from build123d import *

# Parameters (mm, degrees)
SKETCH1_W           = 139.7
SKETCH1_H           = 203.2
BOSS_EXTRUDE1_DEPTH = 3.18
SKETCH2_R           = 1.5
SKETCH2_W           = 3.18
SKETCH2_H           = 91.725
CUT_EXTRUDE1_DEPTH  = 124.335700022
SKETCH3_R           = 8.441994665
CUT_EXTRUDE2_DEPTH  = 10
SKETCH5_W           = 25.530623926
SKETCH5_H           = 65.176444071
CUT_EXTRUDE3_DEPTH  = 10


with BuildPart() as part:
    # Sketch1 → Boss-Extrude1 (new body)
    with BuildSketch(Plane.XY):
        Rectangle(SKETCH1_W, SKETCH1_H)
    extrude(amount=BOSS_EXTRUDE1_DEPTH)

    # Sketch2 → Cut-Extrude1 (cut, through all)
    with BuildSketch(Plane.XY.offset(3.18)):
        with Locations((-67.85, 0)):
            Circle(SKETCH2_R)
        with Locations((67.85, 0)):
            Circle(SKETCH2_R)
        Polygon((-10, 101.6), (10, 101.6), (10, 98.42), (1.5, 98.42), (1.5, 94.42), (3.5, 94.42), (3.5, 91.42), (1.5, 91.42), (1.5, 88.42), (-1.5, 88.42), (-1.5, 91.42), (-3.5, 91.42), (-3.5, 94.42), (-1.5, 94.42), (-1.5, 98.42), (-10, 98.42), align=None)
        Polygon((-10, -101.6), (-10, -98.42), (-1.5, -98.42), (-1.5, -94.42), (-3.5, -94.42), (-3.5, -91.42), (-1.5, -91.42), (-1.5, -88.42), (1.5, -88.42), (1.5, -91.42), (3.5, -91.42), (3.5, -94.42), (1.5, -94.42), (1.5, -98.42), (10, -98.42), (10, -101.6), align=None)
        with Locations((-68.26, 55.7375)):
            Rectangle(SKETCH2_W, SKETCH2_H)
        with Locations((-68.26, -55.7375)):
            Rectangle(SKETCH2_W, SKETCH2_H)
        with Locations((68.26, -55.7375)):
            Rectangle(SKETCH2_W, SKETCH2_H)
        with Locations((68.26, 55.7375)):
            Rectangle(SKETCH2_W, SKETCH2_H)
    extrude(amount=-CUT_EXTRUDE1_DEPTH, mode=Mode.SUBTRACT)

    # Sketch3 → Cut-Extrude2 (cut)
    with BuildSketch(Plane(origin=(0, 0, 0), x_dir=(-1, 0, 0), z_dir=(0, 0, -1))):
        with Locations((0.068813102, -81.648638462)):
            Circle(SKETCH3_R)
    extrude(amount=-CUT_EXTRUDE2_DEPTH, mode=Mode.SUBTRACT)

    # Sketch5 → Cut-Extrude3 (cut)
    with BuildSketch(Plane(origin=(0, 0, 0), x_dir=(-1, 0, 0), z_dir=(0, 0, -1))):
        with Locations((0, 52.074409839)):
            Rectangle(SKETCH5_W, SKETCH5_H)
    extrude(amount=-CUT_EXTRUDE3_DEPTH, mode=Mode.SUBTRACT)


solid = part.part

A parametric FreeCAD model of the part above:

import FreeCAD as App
import Part
import Sketcher

V = App.Vector


def add_polygon(sketch, points):
    """Adds a closed chain of lines whose ends are joined by coincident constraints."""
    first, n = sketch.GeometryCount, len(points)
    for a, b in zip(points, points[1:] + points[:1]):
        sketch.addGeometry(Part.LineSegment(App.Vector(*a, 0), App.Vector(*b, 0)), False)
    for i in range(n):
        sketch.addConstraint(Sketcher.Constraint("Coincident", first + i, 2, first + (i + 1) % n, 1))

doc = App.newDocument("Part")
params = doc.addObject("Spreadsheet::Sheet", "Params")
for row, (alias, value) in enumerate([
    ("sketch1_width", "139.7 mm"),
    ("sketch1_height", "203.2 mm"),
    ("pad1_length", "3.18 mm"),
    ("sketch2_diameter", "3 mm"),
    ("sketch2_width", "20 mm"),
    ("sketch2_width2", "2 mm"),
    ("sketch2_width3", "3 mm"),
    ("sketch2_height", "4 mm"),
    ("pocket2_length", "10 mm"),
    ("pocket3_length", "10 mm"),
], start=1):
    params.set(f"A{row}", alias)
    params.set(f"B{row}", "=" + value)
    params.setAlias(f"B{row}", alias)

body = doc.addObject("PartDesign::Body", "Body")

# Sketch on XY plane
sketch1 = body.newObject("Sketcher::SketchObject", "Sketch")
sketch1.AttachmentSupport = (doc.getObject("XY_Plane"), [""])
sketch1.MapMode = "FlatFace"
add_polygon(sketch1, [(-70, 102), (-70, -102), (70, -102), (70, 102)])  # lines 0-3
sketch1.addConstraint([
    Sketcher.Constraint("Vertical", 0),
    Sketcher.Constraint("Horizontal", 1),
    Sketcher.Constraint("Vertical", 2),
    Sketcher.Constraint("Horizontal", 3),
    Sketcher.Constraint("Symmetric", 0, 2, 2, 2, -1, 1),
    Sketcher.Constraint("DistanceX", 1, 1, 1, 2, 139.7),
    Sketcher.Constraint("DistanceY", 0, 2, 0, 1, 203.2),
])
sketch1.setExpression("Constraints[9]", "Params.sketch1_width")
sketch1.setExpression("Constraints[10]", "Params.sketch1_height")
pad1 = body.newObject("PartDesign::Pad", "Pad")
pad1.Profile = sketch1
pad1.setExpression("Length", "Params.pad1_length")

# Sketch on XY plane
sketch2 = body.newObject("Sketcher::SketchObject", "Sketch001")
sketch2.AttachmentSupport = (doc.getObject("XY_Plane"), [""])
sketch2.MapMode = "FlatFace"
sketch2.AttachmentOffset = App.Placement(V(0, 0, 3.18), App.Rotation())
sketch2.addGeometry(Part.Circle(V(-67.8, 0, 0), V(0, 0, 1), 1.5), False)  # 0
sketch2.addGeometry(Part.Circle(V(67.8, 0, 0), V(0, 0, 1), 1.5), False)  # 1
add_polygon(sketch2, [(10, 101.6), (-10, 101.6), (-10, 98.4), (-1.5, 98.4), (-1.5, 94.4), (-3.5, 94.4), (-3.5, 91.4), (-1.5, 91.4), (-1.5, 88.4), (1.5, 88.4), (1.5, 91.4), (3.5, 91.4), (3.5, 94.4), (1.5, 94.4), (1.5, 98.4), (10, 98.4)])  # lines 2-17
add_polygon(sketch2, [(-10, -98.4), (-10, -101.6), (10, -101.6), (10, -98.4), (1.5, -98.4), (1.5, -94.4), (3.5, -94.4), (3.5, -91.4), (1.5, -91.4), (1.5, -88.4), (-1.5, -88.4), (-1.5, -91.4), (-3.5, -91.4), (-3.5, -94.4), (-1.5, -94.4), (-1.5, -98.4)])  # lines 18-33
add_polygon(sketch2, [(-69.8, 101.6), (-69.8, 9.9), (-66.7, 9.9), (-66.7, 101.6)])  # lines 34-37
add_polygon(sketch2, [(-69.8, -9.9), (-69.8, -101.6), (-66.7, -101.6), (-66.7, -9.9)])  # lines 38-41
add_polygon(sketch2, [(66.7, -9.9), (66.7, -101.6), (69.8, -101.6), (69.8, -9.9)])  # lines 42-45
add_polygon(sketch2, [(66.7, 101.6), (66.7, 9.9), (69.8, 9.9), (69.8, 101.6)])  # lines 46-49
sketch2.addConstraint([
    Sketcher.Constraint("Horizontal", 2),
    Sketcher.Constraint("Vertical", 3),
    Sketcher.Constraint("Horizontal", 4),
    Sketcher.Constraint("Vertical", 5),
    Sketcher.Constraint("Horizontal", 6),
    Sketcher.Constraint("Vertical", 7),
    Sketcher.Constraint("Horizontal", 8),
    Sketcher.Constraint("Vertical", 9),
    Sketcher.Constraint("Horizontal", 10),
    Sketcher.Constraint("Vertical", 11),
    Sketcher.Constraint("Horizontal", 12),
    Sketcher.Constraint("Vertical", 13),
    Sketcher.Constraint("Horizontal", 14),
    Sketcher.Constraint("Vertical", 15),
    Sketcher.Constraint("Horizontal", 16),
    Sketcher.Constraint("Vertical", 17),
    Sketcher.Constraint("Vertical", 18),
    Sketcher.Constraint("Horizontal", 19),
    Sketcher.Constraint("Vertical", 20),
    Sketcher.Constraint("Horizontal", 21),
    Sketcher.Constraint("Vertical", 22),
    Sketcher.Constraint("Horizontal", 23),
    Sketcher.Constraint("Vertical", 24),
    Sketcher.Constraint("Horizontal", 25),
    Sketcher.Constraint("Vertical", 26),
    Sketcher.Constraint("Horizontal", 27),
    Sketcher.Constraint("Vertical", 28),
    Sketcher.Constraint("Horizontal", 29),
    Sketcher.Constraint("Vertical", 30),
    Sketcher.Constraint("Horizontal", 31),
    Sketcher.Constraint("Vertical", 32),
    Sketcher.Constraint("Horizontal", 33),
    Sketcher.Constraint("Vertical", 34),
    Sketcher.Constraint("Horizontal", 35),
    Sketcher.Constraint("Vertical", 36),
    Sketcher.Constraint("Horizontal", 37),
    Sketcher.Constraint("Vertical", 38),
    Sketcher.Constraint("Horizontal", 39),
    Sketcher.Constraint("Vertical", 40),
    Sketcher.Constraint("Horizontal", 41),
    Sketcher.Constraint("Vertical", 42),
    Sketcher.Constraint("Horizontal", 43),
    Sketcher.Constraint("Vertical", 44),
    Sketcher.Constraint("Horizontal", 45),
    Sketcher.Constraint("Vertical", 46),
    Sketcher.Constraint("Horizontal", 47),
    Sketcher.Constraint("Vertical", 48),
    Sketcher.Constraint("Horizontal", 49),
    Sketcher.Constraint("Equal", 0, 1),
    Sketcher.Constraint("Symmetric", 0, 3, 1, 3, -1, 1),
    Sketcher.Constraint("Symmetric", 17, 2, 18, 2, -1, 1),
    Sketcher.Constraint("Symmetric", 3, 2, 20, 2, -1, 1),
    Sketcher.Constraint("Symmetric", 5, 2, 22, 2, -1, 1),
    Sketcher.Constraint("Symmetric", 7, 2, 24, 2, -1, 1),
    Sketcher.Constraint("Symmetric", 9, 2, 26, 2, -1, 1),
    Sketcher.Constraint("Symmetric", 11, 2, 28, 2, -1, 1),
    Sketcher.Constraint("Symmetric", 13, 2, 30, 2, -1, 1),
    Sketcher.Constraint("Symmetric", 15, 2, 32, 2, -1, 1),
    Sketcher.Constraint("Symmetric", 36, 2, 42, 2, -1, 1),
    Sketcher.Constraint("Symmetric", 34, 2, 44, 2, -1, 1),
    Sketcher.Constraint("Symmetric", 40, 2, 46, 2, -1, 1),
    Sketcher.Constraint("Symmetric", 38, 2, 48, 2, -1, 1),
    Sketcher.Constraint("Symmetric", 8, 2, 11, 2, -2),
    Sketcher.Constraint("Symmetric", 6, 2, 13, 2, -2),
    Sketcher.Constraint("Symmetric", 4, 2, 15, 2, -2),
    Sketcher.Constraint("Symmetric", 39, 2, 42, 2, -2),
    Sketcher.Constraint("Symmetric", 41, 2, 44, 2, -2),
    Sketcher.Constraint("PointOnObject", 0, 3, -1),
    Sketcher.Constraint("Horizontal", 17, 2, 36, 2),
    Sketcher.Constraint("Vertical", 5, 2, 8, 2),
    Sketcher.Constraint("Vertical", 3, 2, 18, 2),
    Sketcher.Constraint("Equal", 49, 3),
    Sketcher.Constraint("Equal", 27, 7),
    Sketcher.Constraint("Equal", 7, 9),
    Sketcher.Constraint("Diameter", 0, 3.0),
    Sketcher.Constraint("DistanceX", 2, 2, 2, 1, 20.0),
    Sketcher.Constraint("DistanceX", 6, 2, 6, 1, 2.0),
    Sketcher.Constraint("DistanceX", 10, 1, 10, 2, 3.0),
    Sketcher.Constraint("DistanceY", 5, 2, 5, 1, 4.0),
    Sketcher.Constraint("DistanceX", 34, 2, 0, 3, 2.0),
    Sketcher.Constraint("DistanceX", 35, 1, 35, 2, 3.18),
    Sketcher.Constraint("DistanceY", -1, 1, 2, 2, 101.6),
    Sketcher.Constraint("DistanceX", 0, 3, 1, 3, 135.7),
    Sketcher.Constraint("DistanceY", 34, 2, 34, 1, 91.725),
])
sketch2.setExpression("Constraints[122]", "Params.sketch2_diameter")
sketch2.setExpression("Constraints[123]", "Params.sketch2_width")
sketch2.setExpression("Constraints[124]", "Params.sketch2_width2")
sketch2.setExpression("Constraints[125]", "Params.sketch2_width3")
sketch2.setExpression("Constraints[126]", "Params.sketch2_height")
pocket1 = body.newObject("PartDesign::Pocket", "Pocket")
pocket1.Profile = sketch2
pocket1.Type = "ThroughAll"

# Sketch on XY plane
sketch3 = body.newObject("Sketcher::SketchObject", "Sketch002")
sketch3.AttachmentSupport = (doc.getObject("XY_Plane"), [""])
sketch3.MapMode = "FlatFace"
sketch3.addGeometry(Part.Circle(V(0, -82, 0), V(0, 0, 1), 8), False)
sketch3.addConstraint([
    Sketcher.Constraint("Diameter", 0, 16.883989),
    Sketcher.Constraint("DistanceY", 0, 3, -1, 1, 81.648638),
    Sketcher.Constraint("DistanceX", 0, 3, -1, 1, 0.068813),
])
pocket2 = body.newObject("PartDesign::Pocket", "Pocket001")
pocket2.Profile = sketch3
pocket2.setExpression("Length", "Params.pocket2_length")
pocket2.Reversed = True

# Sketch on XY plane
sketch4 = body.newObject("Sketcher::SketchObject", "Sketch003")
sketch4.AttachmentSupport = (doc.getObject("XY_Plane"), [""])
sketch4.MapMode = "FlatFace"
add_polygon(sketch4, [(13, 85), (13, 19), (-13, 19), (-13, 85)])  # lines 0-3
sketch4.addConstraint([
    Sketcher.Constraint("Vertical", 0),
    Sketcher.Constraint("Horizontal", 1),
    Sketcher.Constraint("Vertical", 2),
    Sketcher.Constraint("Horizontal", 3),
    Sketcher.Constraint("DistanceX", 1, 2, 1, 1, 25.530624),
    Sketcher.Constraint("DistanceY", 0, 2, 0, 1, 65.176444),
    Sketcher.Constraint("DistanceX", -1, 1, 0, 2, 12.765312),
    Sketcher.Constraint("DistanceY", -1, 1, 2, 2, 84.662632),
])
pocket3 = body.newObject("PartDesign::Pocket", "Pocket002")
pocket3.Profile = sketch4
pocket3.setExpression("Length", "Params.pocket3_length")
pocket3.Reversed = True

doc.recompute()
